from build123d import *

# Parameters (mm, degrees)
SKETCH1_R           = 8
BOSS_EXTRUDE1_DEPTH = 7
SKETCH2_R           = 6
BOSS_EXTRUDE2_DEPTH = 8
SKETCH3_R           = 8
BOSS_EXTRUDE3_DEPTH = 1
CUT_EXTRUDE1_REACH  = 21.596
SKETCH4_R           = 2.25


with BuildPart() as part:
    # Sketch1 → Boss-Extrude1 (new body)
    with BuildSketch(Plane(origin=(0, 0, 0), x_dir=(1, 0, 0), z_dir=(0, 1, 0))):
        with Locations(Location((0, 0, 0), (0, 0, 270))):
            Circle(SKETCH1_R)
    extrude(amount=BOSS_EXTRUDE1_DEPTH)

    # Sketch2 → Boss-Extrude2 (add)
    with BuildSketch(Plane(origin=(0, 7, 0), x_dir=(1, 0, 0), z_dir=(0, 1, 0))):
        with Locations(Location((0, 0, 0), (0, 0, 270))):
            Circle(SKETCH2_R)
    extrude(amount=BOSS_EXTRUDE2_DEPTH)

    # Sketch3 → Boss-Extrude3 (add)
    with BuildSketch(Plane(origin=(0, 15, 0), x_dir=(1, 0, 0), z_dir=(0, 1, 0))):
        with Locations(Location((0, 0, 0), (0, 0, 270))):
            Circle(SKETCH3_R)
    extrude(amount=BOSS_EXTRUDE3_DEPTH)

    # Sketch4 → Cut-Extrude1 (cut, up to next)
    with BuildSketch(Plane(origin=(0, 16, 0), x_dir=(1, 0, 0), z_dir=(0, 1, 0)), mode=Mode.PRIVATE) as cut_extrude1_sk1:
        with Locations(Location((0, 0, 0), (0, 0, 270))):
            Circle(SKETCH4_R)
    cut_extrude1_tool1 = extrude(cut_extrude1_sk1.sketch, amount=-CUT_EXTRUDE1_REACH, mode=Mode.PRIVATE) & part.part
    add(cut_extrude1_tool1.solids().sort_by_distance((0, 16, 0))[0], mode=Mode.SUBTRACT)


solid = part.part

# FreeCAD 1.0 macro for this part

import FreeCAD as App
import Part
import Sketcher

V = App.Vector
Q = App.Units.Quantity

doc = App.newDocument("Part")
params = doc.addObject("Spreadsheet::Sheet", "Params")
for row, (alias, value) in enumerate([
    ("sketch1_diameter", "16 mm"),
    ("pad1_length", "7 mm"),
    ("sketch2_diameter", "12 mm"),
    ("pad2_length", "8 mm"),
    ("sketch3_diameter", "16 mm"),
    ("pad3_length", "1 mm"),
    ("sketch4_diameter", "4.5 mm"),
], start=1):
    params.set(f"A{row}", alias)
    params.set(f"B{row}", "=" + value)
    params.setAlias(f"B{row}", alias)

body = doc.addObject("PartDesign::Body", "Body")

# Sketch on XZ plane
sketch1 = body.newObject("Sketcher::SketchObject", "Sketch")
sketch1.AttachmentSupport = (doc.getObject("XZ_Plane"), [""])
sketch1.MapMode = "FlatFace"
sketch1.addGeometry(Part.Circle(V(0, 0, 0), V(0, 0, 1), 8), False)
sketch1.addConstraint([
    Sketcher.Constraint("Coincident", 0, 3, -1, 1),
    Sketcher.Constraint("Diameter", 0, Q("16 mm")),
])
sketch1.setExpression("Constraints[1]", "Params.sketch1_diameter")
pad1 = body.newObject("PartDesign::Pad", "Pad")
pad1.Profile = sketch1
pad1.setExpression("Length", "Params.pad1_length")
pad1.Reversed = True

# Sketch on XZ plane
sketch2 = body.newObject("Sketcher::SketchObject", "Sketch001")
sketch2.AttachmentSupport = (doc.getObject("XZ_Plane"), [""])
sketch2.MapMode = "FlatFace"
sketch2.AttachmentOffset = App.Placement(V(0, 0, -7), App.Rotation())
sketch2.addGeometry(Part.Circle(V(0, 0, 0), V(0, 0, 1), 6), False)
sketch2.addConstraint([
    Sketcher.Constraint("Coincident", 0, 3, -1, 1),
    Sketcher.Constraint("Diameter", 0, Q("12 mm")),
])
sketch2.setExpression("Constraints[1]", "Params.sketch2_diameter")
pad2 = body.newObject("PartDesign::Pad", "Pad001")
pad2.Profile = sketch2
pad2.setExpression("Length", "Params.pad2_length")
pad2.Reversed = True

# Sketch on XZ plane
sketch3 = body.newObject("Sketcher::SketchObject", "Sketch002")
sketch3.AttachmentSupport = (doc.getObject("XZ_Plane"), [""])
sketch3.MapMode = "FlatFace"
sketch3.AttachmentOffset = App.Placement(V(0, 0, -15), App.Rotation())
sketch3.addGeometry(Part.Circle(V(0, 0, 0), V(0, 0, 1), 8), False)
sketch3.addConstraint([
    Sketcher.Constraint("Coincident", 0, 3, -1, 1),
    Sketcher.Constraint("Diameter", 0, Q("16 mm")),
])
sketch3.setExpression("Constraints[1]", "Params.sketch3_diameter")
pad3 = body.newObject("PartDesign::Pad", "Pad002")
pad3.Profile = sketch3
pad3.setExpression("Length", "Params.pad3_length")
pad3.Reversed = True

# Sketch on XZ plane
sketch4 = body.newObject("Sketcher::SketchObject", "Sketch003")
sketch4.AttachmentSupport = (doc.getObject("XZ_Plane"), [""])
sketch4.MapMode = "FlatFace"
sketch4.AttachmentOffset = App.Placement(V(0, 0, -16), App.Rotation())
sketch4.addGeometry(Part.Circle(V(0, 0, 0), V(0, 0, 1), 2.2), False)
sketch4.addConstraint([
    Sketcher.Constraint("Coincident", 0, 3, -1, 1),
    Sketcher.Constraint("Diameter", 0, Q("4.5 mm")),
])
sketch4.setExpression("Constraints[1]", "Params.sketch4_diameter")
pocket1 = body.newObject("PartDesign::Pocket", "Pocket")
pocket1.Profile = sketch4
pocket1.Type = "UpToFirst"
pocket1.Reversed = True

doc.recompute()
